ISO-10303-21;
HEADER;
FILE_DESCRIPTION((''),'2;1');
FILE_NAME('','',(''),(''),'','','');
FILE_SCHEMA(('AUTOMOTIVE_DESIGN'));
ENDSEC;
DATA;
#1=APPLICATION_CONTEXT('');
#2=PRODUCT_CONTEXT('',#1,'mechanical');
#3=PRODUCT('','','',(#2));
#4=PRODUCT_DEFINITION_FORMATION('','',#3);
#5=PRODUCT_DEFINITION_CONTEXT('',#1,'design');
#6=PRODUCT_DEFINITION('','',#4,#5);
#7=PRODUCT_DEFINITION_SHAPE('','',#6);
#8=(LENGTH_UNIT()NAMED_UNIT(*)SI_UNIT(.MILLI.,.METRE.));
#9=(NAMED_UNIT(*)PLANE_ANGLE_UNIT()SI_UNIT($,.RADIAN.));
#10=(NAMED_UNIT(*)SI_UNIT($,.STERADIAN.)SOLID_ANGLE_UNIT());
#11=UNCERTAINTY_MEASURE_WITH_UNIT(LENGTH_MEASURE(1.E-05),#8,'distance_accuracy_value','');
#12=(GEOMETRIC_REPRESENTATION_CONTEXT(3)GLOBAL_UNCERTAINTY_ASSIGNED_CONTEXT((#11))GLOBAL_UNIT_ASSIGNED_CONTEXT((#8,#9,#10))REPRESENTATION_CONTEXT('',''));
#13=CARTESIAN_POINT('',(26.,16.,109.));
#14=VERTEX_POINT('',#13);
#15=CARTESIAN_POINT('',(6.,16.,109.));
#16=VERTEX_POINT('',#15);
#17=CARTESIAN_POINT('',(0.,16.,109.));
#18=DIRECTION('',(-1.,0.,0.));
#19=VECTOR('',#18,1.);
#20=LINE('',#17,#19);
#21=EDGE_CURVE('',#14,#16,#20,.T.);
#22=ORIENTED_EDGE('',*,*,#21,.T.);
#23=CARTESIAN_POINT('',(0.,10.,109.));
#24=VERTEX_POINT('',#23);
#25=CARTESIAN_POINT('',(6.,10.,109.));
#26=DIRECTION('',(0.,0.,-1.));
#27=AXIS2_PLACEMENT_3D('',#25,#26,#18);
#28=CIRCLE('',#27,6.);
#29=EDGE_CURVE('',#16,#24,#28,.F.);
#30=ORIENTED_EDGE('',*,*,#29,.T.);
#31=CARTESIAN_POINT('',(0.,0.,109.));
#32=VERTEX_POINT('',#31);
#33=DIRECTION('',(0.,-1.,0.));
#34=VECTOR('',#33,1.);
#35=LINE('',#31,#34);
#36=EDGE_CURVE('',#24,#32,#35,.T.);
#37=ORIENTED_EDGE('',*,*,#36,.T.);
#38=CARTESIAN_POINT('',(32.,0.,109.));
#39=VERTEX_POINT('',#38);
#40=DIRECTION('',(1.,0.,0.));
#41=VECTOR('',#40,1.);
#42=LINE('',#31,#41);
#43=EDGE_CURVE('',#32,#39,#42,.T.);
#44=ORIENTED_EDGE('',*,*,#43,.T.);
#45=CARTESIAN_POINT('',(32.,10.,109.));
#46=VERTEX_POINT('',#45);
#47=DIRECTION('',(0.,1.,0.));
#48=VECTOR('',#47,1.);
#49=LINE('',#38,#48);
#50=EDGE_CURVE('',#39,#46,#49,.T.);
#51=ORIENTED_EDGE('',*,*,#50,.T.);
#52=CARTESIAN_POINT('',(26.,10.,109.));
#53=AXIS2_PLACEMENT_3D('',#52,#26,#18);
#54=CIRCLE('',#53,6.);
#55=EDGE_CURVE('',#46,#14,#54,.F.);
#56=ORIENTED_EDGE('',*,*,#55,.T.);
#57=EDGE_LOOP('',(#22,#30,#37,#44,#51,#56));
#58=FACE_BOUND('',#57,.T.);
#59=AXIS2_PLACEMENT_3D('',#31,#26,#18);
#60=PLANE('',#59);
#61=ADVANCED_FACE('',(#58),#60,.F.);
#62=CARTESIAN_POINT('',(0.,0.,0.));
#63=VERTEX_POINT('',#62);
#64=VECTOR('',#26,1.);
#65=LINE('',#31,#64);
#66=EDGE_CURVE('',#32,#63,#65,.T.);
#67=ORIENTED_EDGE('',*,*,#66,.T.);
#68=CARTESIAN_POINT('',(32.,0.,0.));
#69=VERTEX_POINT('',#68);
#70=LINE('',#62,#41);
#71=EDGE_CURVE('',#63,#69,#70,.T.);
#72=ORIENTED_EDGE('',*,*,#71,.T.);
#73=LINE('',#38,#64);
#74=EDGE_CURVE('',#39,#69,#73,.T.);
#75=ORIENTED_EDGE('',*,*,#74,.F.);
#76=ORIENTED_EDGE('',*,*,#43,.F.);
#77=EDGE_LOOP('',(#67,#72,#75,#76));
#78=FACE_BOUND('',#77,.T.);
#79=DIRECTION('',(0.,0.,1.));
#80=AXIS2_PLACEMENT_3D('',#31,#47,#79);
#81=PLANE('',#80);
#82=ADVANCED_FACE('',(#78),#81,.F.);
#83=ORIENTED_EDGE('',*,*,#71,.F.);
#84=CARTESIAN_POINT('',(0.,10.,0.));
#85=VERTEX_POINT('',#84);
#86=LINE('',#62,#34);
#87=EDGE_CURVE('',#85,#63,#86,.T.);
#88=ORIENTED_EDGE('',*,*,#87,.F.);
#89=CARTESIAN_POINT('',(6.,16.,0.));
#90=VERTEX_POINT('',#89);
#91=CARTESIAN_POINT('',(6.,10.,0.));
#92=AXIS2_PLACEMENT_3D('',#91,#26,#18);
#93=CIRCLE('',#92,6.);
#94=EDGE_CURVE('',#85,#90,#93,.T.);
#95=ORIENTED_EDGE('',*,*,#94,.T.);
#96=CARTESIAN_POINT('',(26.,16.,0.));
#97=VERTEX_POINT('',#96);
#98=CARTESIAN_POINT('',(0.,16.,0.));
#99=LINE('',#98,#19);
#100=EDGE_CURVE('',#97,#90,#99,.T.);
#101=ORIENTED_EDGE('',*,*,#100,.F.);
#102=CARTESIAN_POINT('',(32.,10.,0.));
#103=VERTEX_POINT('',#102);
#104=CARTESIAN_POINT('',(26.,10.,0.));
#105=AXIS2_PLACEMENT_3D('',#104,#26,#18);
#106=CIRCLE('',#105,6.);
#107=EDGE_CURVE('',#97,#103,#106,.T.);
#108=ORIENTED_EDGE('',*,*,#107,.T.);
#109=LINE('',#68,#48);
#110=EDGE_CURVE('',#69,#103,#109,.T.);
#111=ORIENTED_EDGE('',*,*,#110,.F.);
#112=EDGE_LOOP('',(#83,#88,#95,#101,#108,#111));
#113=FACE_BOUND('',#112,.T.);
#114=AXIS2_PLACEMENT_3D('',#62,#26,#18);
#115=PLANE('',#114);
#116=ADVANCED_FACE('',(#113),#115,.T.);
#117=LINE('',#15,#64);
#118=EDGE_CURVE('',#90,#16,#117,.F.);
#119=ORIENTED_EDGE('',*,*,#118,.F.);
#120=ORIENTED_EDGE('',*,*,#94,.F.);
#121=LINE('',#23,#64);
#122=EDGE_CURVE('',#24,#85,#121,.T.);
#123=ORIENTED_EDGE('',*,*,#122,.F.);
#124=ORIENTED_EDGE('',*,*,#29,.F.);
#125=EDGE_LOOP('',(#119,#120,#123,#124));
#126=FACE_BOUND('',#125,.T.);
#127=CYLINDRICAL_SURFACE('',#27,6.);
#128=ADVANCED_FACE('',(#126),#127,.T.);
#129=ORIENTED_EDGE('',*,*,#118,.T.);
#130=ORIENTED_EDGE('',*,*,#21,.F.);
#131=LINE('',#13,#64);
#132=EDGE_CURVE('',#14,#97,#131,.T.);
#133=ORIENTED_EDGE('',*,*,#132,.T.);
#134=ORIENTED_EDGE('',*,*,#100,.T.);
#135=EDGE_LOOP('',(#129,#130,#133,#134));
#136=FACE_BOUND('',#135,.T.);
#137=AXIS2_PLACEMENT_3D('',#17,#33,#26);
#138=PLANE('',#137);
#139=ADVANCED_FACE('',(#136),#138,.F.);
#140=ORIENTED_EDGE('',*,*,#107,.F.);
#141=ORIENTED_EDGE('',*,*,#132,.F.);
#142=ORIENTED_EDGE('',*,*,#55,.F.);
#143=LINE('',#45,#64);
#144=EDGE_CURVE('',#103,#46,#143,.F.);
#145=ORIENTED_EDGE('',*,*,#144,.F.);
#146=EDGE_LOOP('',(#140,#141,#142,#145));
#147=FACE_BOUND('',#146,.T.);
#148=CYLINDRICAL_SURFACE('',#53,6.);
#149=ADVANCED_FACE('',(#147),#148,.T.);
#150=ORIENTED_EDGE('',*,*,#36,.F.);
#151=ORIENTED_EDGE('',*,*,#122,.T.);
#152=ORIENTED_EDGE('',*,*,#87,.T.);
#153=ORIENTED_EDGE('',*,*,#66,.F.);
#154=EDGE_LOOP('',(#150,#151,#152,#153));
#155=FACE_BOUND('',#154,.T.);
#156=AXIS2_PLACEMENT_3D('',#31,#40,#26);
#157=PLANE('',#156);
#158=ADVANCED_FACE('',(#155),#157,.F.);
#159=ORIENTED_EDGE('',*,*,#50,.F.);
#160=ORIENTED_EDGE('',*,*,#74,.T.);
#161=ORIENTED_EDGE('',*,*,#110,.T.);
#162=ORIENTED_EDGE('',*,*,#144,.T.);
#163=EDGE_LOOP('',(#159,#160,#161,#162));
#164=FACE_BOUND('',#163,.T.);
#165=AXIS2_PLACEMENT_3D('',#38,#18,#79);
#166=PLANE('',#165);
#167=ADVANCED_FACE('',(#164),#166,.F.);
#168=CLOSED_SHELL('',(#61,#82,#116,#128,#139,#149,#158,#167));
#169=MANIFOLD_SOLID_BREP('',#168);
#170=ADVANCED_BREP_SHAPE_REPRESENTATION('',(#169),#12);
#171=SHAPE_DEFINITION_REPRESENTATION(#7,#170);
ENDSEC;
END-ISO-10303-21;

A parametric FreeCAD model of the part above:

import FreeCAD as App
import Part
import Sketcher

V = App.Vector
Q = App.Units.Quantity


def edges_at(feature, points):
    """Names of the edges that pass closest to the given points."""
    edges = feature.Shape.Edges
    near = lambda p: min(range(len(edges)), key=lambda i: edges[i].distToShape(Part.Vertex(*p))[0])
    return sorted({f"Edge{near(p) + 1}" for p in points})


def add_polygon(sketch, points):
    """Adds a closed chain of lines whose ends are joined by coincident constraints."""
    first, n = sketch.GeometryCount, len(points)
    for a, b in zip(points, points[1:] + points[:1]):
        sketch.addGeometry(Part.LineSegment(App.Vector(*a, 0), App.Vector(*b, 0)), False)
    for i in range(n):
        sketch.addConstraint(Sketcher.Constraint("Coincident", first + i, 2, first + (i + 1) % n, 1))

doc = App.newDocument("Part")
body = doc.addObject("PartDesign::Body", "Body")

sketch1 = body.newObject("Sketcher::SketchObject", "Sketch")
sketch1.AttachmentSupport = (doc.getObject("XY_Plane"), [""])
sketch1.MapMode = "FlatFace"
add_polygon(sketch1, [(0, 16), (0, 0), (32, 0), (32, 16)])
sketch1.addConstraint([
    Sketcher.Constraint("Vertical", 0),
    Sketcher.Constraint("Horizontal", 1),
    Sketcher.Constraint("Vertical", 2),
    Sketcher.Constraint("Horizontal", 3),
    Sketcher.Constraint("Coincident", 0, 2, -1, 1),
    Sketcher.Constraint("DistanceX", 1, 1, 1, 2, Q("32 mm")),
    Sketcher.Constraint("DistanceY", 0, 2, 0, 1, Q("16 mm")),
])
pad1 = body.newObject("PartDesign::Pad", "Pad")
pad1.Profile = sketch1
pad1.Length = 109
doc.recompute()

fillet = body.newObject("PartDesign::Fillet", "Fillet")
fillet.Base = (pad1, edges_at(pad1, [(0, 16, 54.5), (32, 16, 54.5)]))
fillet.Radius = 6

doc.recompute()
